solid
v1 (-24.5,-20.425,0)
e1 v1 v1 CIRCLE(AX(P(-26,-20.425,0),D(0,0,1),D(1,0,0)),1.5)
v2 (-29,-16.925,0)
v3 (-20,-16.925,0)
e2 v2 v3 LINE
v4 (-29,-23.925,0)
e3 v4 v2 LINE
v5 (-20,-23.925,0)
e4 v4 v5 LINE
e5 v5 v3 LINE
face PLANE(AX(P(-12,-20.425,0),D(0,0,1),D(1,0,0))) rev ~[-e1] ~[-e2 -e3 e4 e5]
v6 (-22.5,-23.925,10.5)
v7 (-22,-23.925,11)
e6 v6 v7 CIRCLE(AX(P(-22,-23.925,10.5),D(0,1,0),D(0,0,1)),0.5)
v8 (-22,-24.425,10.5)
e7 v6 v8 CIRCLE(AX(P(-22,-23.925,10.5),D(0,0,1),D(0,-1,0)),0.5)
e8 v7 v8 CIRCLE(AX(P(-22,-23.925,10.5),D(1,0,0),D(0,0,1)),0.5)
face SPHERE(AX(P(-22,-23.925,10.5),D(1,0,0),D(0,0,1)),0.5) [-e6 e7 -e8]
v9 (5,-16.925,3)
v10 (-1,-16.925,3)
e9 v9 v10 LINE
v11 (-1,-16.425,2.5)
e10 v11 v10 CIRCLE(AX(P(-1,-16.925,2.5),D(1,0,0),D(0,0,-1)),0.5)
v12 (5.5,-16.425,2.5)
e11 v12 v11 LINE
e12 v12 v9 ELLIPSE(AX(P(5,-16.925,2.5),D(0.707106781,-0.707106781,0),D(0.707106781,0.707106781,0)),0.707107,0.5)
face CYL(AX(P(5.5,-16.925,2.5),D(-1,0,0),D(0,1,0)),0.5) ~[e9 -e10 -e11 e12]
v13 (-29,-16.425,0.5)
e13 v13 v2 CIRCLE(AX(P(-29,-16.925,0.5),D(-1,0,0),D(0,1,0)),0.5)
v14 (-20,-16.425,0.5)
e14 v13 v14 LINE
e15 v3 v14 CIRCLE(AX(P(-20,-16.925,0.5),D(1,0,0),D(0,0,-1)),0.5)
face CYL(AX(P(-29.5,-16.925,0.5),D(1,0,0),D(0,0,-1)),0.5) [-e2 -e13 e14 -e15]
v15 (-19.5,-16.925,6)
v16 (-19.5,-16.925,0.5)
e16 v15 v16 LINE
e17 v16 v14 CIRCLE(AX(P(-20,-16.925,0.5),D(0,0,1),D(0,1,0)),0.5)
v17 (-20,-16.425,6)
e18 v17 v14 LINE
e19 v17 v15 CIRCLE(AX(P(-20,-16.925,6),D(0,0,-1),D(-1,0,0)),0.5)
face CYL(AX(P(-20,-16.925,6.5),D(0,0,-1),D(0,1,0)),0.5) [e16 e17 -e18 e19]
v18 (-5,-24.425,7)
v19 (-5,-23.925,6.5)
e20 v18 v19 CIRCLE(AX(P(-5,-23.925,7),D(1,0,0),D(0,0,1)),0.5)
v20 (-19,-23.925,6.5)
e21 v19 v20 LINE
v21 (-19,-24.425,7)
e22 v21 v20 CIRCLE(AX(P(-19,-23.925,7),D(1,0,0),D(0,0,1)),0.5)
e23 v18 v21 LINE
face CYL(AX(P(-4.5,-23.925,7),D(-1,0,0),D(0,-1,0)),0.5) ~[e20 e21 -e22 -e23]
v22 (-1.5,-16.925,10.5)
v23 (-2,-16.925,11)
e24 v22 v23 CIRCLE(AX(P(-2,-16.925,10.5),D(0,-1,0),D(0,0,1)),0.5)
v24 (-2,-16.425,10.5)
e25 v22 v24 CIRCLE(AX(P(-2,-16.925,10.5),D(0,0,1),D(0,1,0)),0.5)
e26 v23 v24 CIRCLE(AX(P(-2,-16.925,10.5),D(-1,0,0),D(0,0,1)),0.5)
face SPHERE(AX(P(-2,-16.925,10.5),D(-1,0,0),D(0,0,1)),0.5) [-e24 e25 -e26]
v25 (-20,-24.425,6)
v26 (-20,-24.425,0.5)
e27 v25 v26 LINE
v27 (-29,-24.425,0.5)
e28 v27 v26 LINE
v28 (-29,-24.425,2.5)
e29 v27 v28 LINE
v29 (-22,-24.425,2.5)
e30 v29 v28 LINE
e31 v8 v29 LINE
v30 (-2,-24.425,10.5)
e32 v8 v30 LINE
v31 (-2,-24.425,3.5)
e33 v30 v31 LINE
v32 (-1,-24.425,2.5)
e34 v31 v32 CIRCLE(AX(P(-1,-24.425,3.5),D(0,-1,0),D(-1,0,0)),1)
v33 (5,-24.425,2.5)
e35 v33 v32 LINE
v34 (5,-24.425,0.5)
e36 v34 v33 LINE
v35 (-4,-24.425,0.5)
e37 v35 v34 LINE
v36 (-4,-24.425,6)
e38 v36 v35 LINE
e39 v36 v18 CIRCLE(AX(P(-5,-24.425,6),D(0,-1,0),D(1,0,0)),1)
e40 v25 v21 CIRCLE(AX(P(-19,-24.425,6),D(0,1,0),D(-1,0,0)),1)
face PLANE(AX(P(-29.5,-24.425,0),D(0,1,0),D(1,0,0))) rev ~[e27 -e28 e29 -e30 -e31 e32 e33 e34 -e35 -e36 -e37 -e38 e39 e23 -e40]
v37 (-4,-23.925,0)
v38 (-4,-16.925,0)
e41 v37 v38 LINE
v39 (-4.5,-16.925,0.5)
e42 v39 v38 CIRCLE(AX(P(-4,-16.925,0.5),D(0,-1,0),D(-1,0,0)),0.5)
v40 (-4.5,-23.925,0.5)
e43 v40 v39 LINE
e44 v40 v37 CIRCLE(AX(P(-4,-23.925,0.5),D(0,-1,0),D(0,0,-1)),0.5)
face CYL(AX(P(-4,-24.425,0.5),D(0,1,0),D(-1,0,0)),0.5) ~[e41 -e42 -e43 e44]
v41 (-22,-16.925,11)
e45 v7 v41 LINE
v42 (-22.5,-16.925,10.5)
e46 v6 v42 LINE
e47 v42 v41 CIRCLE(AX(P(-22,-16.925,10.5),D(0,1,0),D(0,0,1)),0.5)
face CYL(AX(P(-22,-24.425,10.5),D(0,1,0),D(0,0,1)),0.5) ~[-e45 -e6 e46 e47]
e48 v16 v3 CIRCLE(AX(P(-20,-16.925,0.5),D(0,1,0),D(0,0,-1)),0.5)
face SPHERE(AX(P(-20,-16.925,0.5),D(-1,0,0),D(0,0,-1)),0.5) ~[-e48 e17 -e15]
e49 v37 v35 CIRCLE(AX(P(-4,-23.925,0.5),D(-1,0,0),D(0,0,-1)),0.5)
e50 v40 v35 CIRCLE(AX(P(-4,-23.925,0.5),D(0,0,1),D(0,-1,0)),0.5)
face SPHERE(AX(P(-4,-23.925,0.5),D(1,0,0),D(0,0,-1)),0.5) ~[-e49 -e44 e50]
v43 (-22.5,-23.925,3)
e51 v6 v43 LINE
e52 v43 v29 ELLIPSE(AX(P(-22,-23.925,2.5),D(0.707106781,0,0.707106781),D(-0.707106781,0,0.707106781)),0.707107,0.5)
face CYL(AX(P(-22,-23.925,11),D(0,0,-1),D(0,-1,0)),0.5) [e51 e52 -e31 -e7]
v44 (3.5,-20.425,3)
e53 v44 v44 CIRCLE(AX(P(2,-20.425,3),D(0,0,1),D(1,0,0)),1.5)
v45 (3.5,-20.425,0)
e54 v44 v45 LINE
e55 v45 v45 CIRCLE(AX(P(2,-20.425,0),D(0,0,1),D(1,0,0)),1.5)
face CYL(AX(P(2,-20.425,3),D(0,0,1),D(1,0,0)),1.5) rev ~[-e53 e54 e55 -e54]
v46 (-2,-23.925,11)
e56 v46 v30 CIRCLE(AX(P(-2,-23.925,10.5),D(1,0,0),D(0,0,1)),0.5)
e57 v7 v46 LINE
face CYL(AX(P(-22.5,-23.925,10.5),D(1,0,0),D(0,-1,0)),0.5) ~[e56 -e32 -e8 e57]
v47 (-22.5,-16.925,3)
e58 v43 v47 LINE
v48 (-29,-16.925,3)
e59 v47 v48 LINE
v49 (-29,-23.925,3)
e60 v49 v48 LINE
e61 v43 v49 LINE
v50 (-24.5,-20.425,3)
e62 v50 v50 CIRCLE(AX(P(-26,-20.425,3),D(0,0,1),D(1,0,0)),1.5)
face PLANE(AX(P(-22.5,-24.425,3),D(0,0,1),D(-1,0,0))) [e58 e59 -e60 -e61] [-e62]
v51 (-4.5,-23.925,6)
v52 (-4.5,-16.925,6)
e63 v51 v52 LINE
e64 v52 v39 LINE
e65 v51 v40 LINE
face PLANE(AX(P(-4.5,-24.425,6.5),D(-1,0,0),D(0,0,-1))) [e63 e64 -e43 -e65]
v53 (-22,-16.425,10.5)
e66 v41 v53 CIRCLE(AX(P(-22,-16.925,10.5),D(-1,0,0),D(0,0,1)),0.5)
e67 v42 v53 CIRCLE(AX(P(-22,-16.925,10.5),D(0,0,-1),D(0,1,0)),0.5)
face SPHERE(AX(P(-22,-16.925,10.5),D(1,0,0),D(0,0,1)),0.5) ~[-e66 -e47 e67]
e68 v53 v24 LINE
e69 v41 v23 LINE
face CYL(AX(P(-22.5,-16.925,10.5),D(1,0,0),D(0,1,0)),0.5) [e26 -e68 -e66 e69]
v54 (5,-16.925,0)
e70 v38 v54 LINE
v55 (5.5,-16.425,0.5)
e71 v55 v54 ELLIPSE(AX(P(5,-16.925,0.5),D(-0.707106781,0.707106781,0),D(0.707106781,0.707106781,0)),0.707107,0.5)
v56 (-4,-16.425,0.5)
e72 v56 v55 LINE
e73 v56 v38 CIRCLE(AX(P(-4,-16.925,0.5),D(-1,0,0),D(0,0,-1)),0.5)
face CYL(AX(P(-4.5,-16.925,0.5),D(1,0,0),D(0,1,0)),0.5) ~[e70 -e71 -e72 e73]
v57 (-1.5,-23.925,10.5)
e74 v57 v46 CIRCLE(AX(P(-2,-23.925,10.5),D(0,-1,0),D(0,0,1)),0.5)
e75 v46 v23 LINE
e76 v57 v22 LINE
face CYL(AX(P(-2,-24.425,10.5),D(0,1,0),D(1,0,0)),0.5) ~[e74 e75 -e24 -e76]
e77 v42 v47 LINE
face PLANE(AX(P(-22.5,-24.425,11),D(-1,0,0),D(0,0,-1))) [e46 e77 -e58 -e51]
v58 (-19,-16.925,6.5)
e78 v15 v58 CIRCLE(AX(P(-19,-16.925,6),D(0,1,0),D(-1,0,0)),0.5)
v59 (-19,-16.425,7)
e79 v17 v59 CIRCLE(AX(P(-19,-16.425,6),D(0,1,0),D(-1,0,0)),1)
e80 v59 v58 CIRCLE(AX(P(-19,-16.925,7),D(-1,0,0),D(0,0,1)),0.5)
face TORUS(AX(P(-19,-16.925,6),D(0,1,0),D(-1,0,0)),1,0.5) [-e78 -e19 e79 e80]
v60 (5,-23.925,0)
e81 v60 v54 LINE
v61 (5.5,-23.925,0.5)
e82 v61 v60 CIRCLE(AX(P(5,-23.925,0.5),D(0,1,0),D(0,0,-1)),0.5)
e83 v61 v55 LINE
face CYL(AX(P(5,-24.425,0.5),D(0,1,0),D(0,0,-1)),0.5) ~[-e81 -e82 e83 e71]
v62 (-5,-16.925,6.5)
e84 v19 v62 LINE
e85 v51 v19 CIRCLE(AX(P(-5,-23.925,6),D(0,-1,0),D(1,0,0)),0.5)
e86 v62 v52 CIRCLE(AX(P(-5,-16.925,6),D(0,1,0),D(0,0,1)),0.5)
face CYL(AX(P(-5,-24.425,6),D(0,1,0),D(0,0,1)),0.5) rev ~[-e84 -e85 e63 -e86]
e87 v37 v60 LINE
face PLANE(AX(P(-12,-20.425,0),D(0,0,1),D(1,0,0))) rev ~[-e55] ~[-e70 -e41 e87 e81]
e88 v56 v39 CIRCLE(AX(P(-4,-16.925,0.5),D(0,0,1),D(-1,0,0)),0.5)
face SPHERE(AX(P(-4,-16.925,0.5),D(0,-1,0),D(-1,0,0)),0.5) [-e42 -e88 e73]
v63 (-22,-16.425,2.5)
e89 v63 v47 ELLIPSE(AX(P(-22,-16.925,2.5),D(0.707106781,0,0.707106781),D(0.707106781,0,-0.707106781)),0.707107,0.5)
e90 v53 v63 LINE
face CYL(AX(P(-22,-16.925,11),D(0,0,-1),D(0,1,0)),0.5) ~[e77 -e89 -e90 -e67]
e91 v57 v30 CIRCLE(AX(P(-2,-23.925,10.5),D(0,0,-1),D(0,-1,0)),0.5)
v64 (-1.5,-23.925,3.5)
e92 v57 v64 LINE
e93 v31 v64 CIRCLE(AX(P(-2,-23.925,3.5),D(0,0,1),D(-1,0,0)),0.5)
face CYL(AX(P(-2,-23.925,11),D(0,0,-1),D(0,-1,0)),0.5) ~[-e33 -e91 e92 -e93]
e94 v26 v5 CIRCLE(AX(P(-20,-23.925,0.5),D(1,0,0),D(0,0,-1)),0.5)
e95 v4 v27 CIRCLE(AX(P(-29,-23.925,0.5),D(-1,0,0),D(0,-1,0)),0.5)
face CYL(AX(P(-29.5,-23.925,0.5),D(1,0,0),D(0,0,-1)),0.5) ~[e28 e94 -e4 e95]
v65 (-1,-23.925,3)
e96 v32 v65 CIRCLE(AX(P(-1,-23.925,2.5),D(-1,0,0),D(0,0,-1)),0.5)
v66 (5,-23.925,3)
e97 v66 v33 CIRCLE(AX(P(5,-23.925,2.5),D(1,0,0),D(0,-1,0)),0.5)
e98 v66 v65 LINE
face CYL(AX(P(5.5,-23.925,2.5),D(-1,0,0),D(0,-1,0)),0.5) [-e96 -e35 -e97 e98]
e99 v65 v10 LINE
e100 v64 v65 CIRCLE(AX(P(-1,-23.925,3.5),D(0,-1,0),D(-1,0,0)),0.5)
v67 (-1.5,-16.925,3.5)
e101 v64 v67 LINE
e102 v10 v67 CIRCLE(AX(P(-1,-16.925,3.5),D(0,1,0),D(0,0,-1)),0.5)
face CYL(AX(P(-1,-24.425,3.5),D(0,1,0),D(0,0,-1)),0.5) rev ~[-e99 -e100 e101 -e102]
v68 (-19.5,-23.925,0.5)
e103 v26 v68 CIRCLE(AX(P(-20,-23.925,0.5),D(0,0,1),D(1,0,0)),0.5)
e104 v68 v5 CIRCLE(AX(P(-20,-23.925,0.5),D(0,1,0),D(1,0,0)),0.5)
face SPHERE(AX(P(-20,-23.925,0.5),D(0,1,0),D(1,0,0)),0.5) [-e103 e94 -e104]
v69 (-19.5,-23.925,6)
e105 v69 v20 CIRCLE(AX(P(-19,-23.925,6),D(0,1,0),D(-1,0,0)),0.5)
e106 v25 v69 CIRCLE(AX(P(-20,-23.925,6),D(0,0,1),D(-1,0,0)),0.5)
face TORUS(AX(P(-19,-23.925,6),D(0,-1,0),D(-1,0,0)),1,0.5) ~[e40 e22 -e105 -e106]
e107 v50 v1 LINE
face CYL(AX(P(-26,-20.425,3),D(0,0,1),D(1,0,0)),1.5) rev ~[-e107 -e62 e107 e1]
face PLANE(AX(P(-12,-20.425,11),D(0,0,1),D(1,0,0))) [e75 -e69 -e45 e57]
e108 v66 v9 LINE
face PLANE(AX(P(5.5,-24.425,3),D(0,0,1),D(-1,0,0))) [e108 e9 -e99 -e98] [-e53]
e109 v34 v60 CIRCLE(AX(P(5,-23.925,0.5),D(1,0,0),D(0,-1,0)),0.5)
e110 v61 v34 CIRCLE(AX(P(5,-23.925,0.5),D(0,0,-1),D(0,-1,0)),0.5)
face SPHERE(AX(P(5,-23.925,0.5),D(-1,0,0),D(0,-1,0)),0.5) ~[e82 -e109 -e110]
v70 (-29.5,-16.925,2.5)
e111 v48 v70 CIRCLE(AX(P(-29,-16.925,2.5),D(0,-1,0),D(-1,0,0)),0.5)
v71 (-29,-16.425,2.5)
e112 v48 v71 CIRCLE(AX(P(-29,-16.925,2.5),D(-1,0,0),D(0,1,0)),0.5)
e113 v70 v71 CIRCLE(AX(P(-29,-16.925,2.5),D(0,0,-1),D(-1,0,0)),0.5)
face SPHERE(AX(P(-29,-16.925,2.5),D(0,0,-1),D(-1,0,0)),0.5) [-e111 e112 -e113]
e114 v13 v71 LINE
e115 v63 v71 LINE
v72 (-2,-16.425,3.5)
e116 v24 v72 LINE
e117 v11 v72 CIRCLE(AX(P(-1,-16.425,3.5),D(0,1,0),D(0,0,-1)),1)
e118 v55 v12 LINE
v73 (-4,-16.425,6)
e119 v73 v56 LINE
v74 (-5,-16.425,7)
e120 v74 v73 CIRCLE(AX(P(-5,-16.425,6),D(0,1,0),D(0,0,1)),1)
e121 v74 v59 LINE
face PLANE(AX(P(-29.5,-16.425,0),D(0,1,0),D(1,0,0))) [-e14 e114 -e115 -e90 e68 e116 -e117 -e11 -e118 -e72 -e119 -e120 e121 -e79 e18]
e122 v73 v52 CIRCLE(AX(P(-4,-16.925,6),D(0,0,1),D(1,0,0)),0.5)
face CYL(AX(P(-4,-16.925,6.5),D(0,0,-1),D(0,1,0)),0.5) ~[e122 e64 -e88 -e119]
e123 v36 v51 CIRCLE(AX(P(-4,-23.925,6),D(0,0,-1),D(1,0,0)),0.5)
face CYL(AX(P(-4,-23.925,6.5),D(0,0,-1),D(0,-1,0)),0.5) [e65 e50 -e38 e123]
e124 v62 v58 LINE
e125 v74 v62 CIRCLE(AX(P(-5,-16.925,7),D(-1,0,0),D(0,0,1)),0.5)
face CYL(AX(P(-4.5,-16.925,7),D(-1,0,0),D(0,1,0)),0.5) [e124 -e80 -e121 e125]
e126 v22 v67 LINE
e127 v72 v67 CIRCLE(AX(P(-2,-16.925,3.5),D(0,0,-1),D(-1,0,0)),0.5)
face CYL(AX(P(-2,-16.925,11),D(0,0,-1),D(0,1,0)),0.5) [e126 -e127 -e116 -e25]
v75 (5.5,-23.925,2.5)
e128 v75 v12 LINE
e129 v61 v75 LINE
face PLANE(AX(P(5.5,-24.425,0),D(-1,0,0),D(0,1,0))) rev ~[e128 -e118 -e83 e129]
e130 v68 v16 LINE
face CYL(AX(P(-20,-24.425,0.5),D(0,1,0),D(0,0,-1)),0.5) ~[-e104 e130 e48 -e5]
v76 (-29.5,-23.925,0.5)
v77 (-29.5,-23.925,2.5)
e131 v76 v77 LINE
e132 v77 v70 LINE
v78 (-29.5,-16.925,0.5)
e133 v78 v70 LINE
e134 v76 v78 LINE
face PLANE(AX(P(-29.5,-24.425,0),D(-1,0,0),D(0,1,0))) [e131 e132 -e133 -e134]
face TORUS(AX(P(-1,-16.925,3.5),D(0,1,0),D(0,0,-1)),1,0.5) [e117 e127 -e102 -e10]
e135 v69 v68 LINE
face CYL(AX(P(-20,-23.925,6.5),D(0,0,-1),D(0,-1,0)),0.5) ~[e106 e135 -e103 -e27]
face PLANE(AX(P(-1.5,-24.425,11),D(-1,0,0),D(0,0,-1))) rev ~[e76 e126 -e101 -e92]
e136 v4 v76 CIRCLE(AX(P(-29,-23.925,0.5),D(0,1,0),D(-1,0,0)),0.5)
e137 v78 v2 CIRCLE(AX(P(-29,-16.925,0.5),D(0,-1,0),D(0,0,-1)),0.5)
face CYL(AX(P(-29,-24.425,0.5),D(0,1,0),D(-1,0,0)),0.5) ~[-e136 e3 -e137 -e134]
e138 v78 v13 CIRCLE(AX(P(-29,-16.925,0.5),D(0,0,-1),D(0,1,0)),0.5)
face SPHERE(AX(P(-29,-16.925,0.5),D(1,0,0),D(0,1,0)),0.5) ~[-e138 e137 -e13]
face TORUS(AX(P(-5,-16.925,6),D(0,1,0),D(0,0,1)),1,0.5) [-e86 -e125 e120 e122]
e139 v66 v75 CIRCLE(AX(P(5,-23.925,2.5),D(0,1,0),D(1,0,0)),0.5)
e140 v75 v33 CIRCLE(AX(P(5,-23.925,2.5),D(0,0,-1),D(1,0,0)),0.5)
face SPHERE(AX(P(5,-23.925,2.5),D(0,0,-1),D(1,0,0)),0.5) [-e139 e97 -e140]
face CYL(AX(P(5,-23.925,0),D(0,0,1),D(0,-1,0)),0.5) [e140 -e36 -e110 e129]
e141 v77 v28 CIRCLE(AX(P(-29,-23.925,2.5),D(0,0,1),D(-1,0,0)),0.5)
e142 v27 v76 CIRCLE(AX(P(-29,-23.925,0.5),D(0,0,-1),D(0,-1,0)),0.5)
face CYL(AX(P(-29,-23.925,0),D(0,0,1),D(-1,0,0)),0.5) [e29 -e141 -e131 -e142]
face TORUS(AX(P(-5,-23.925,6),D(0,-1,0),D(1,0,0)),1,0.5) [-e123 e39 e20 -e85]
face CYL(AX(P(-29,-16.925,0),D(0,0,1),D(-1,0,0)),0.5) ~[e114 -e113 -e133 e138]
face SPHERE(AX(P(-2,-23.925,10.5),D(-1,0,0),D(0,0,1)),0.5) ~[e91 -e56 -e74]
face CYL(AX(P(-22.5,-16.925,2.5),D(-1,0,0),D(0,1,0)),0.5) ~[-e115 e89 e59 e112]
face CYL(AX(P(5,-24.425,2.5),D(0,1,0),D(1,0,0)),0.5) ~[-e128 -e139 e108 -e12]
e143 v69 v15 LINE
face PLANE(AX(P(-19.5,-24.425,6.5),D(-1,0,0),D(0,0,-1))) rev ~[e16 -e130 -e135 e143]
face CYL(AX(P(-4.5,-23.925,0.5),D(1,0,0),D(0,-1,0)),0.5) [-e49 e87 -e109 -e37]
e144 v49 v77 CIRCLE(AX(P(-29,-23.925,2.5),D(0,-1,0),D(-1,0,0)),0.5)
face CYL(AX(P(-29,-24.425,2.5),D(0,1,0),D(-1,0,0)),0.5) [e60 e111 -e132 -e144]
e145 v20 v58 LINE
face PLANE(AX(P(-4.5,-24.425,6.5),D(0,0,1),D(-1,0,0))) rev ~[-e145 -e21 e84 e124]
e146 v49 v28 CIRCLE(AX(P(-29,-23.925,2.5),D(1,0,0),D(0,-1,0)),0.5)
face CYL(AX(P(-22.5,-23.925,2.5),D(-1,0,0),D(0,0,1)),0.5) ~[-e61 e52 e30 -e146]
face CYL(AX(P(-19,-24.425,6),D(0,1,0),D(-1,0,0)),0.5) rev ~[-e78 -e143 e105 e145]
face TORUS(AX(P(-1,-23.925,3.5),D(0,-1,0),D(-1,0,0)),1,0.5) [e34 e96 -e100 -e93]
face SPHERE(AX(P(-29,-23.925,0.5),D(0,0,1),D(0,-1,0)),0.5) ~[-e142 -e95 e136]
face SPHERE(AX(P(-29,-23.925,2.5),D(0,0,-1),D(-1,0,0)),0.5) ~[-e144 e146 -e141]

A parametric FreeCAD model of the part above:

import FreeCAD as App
import Part
import Sketcher


def edges_at(feature, points):
    """Names of the edges that pass closest to the given points."""
    edges = feature.Shape.Edges
    near = lambda p: min(range(len(edges)), key=lambda i: edges[i].distToShape(Part.Vertex(*p))[0])
    return sorted({f"Edge{near(p) + 1}" for p in points})


def add_polygon(sketch, points):
    """Adds a closed chain of lines whose ends are joined by coincident constraints."""
    first, n = sketch.GeometryCount, len(points)
    for a, b in zip(points, points[1:] + points[:1]):
        sketch.addGeometry(Part.LineSegment(App.Vector(*a, 0), App.Vector(*b, 0)), False)
    for i in range(n):
        sketch.addConstraint(Sketcher.Constraint("Coincident", first + i, 2, first + (i + 1) % n, 1))

doc = App.newDocument("Part")
body = doc.addObject("PartDesign::Body", "Body")

sketch1 = body.newObject("Sketcher::SketchObject", "Sketch")
sketch1.AttachmentSupport = (doc.getObject("XY_Plane"), [""])
sketch1.MapMode = "FlatFace"
add_polygon(sketch1, [(-29.5, -16.425), (-29.5, -24.425), (5.5, -24.425), (5.5, -16.425)])
sketch1.addConstraint([
    Sketcher.Constraint("Vertical", 0),
    Sketcher.Constraint("Horizontal", 1),
    Sketcher.Constraint("Vertical", 2),
    Sketcher.Constraint("Horizontal", 3),
    Sketcher.Constraint("DistanceX", 1, 1, 1, 2, 35.0),
    Sketcher.Constraint("DistanceY", 0, 2, 0, 1, 8.0),
    Sketcher.Constraint("DistanceX", 0, 2, -1, 1, 29.5),
    Sketcher.Constraint("DistanceY", 0, 2, -1, 1, 24.425),
])
pad1 = body.newObject("PartDesign::Pad", "Pad")
pad1.Profile = sketch1
pad1.Length = 11

sketch2 = body.newObject("Sketcher::SketchObject", "Sketch001")
sketch2.AttachmentSupport = (doc.getObject("XZ_Plane"), [""])
sketch2.MapMode = "FlatFace"
sketch2.AttachmentOffset = App.Placement(App.Vector(0, 0, 24.425), App.Rotation())
add_polygon(sketch2, [(-4.5, 0), (-4.5, 6.5), (-19.5, 6.5), (-19.5, 0)])
sketch2.addConstraint([
    Sketcher.Constraint("Vertical", 0),
    Sketcher.Constraint("Horizontal", 1),
    Sketcher.Constraint("Vertical", 2),
    Sketcher.Constraint("Horizontal", 3),
    Sketcher.Constraint("PointOnObject", 2, 2, -1),
    Sketcher.Constraint("DistanceX", 1, 2, 1, 1, 15.0),
    Sketcher.Constraint("DistanceY", 0, 1, 0, 2, 6.5),
    Sketcher.Constraint("DistanceX", 0, 2, -1, 1, 4.5),
])
pocket1 = body.newObject("PartDesign::Pocket", "Pocket")
pocket1.Profile = sketch2
pocket1.Type = "UpToFirst"

sketch3 = body.newObject("Sketcher::SketchObject", "Sketch002")
sketch3.AttachmentSupport = (doc.getObject("XZ_Plane"), [""])
sketch3.MapMode = "FlatFace"
sketch3.AttachmentOffset = App.Placement(App.Vector(0, 0, 24.425), App.Rotation())
add_polygon(sketch3, [(5.5, 3), (5.5, 11), (-1.5, 11), (-1.5, 3)])
sketch3.addConstraint([
    Sketcher.Constraint("Vertical", 0),
    Sketcher.Constraint("Horizontal", 1),
    Sketcher.Constraint("Vertical", 2),
    Sketcher.Constraint("Horizontal", 3),
    Sketcher.Constraint("DistanceX", 1, 2, 1, 1, 7.0),
    Sketcher.Constraint("DistanceY", 0, 1, 0, 2, 8.0),
    Sketcher.Constraint("DistanceY", -1, 1, 0, 2, 11.0),
    Sketcher.Constraint("DistanceX", -1, 1, 0, 2, 5.5),
])
pocket2 = body.newObject("PartDesign::Pocket", "Pocket001")
pocket2.Profile = sketch3
pocket2.Type = "UpToFirst"

sketch4 = body.newObject("Sketcher::SketchObject", "Sketch003")
sketch4.AttachmentSupport = (doc.getObject("XZ_Plane"), [""])
sketch4.MapMode = "FlatFace"
sketch4.AttachmentOffset = App.Placement(App.Vector(0, 0, 24.425), App.Rotation())
add_polygon(sketch4, [(-22.5, 3), (-22.5, 11), (-29.5, 11), (-29.5, 3)])
sketch4.addConstraint([
    Sketcher.Constraint("Vertical", 0),
    Sketcher.Constraint("Horizontal", 1),
    Sketcher.Constraint("Vertical", 2),
    Sketcher.Constraint("Horizontal", 3),
    Sketcher.Constraint("DistanceX", 1, 2, 1, 1, 7.0),
    Sketcher.Constraint("DistanceY", 0, 1, 0, 2, 8.0),
    Sketcher.Constraint("DistanceY", -1, 1, 0, 2, 11.0),
    Sketcher.Constraint("DistanceX", 0, 2, -1, 1, 22.5),
])
pocket3 = body.newObject("PartDesign::Pocket", "Pocket002")
pocket3.Profile = sketch4
pocket3.Type = "UpToFirst"

sketch5 = body.newObject("Sketcher::SketchObject", "Sketch004")
sketch5.AttachmentSupport = (doc.getObject("XY_Plane"), [""])
sketch5.MapMode = "FlatFace"
sketch5.AttachmentOffset = App.Placement(App.Vector(0, 0, 3), App.Rotation())
sketch5.addGeometry(Part.Circle(App.Vector(2, -20.425, 0), App.Vector(0, 0, 1), 1.5), False)
sketch5.addConstraint([
    Sketcher.Constraint("Diameter", 0, 3.0),
    Sketcher.Constraint("DistanceX", -1, 1, 0, 3, 2.0),
    Sketcher.Constraint("DistanceY", 0, 3, -1, 1, 20.425),
])
pocket4 = body.newObject("PartDesign::Pocket", "Pocket003")
pocket4.Profile = sketch5
pocket4.Type = "UpToFirst"

sketch6 = body.newObject("Sketcher::SketchObject", "Sketch005")
sketch6.AttachmentSupport = (doc.getObject("XY_Plane"), [""])
sketch6.MapMode = "FlatFace"
sketch6.AttachmentOffset = App.Placement(App.Vector(0, 0, 3), App.Rotation())
sketch6.addGeometry(Part.Circle(App.Vector(-26, -20.425, 0), App.Vector(0, 0, 1), 1.5), False)
sketch6.addConstraint([
    Sketcher.Constraint("Diameter", 0, 3.0),
    Sketcher.Constraint("DistanceX", 0, 3, -1, 1, 26.0),
    Sketcher.Constraint("DistanceY", 0, 3, -1, 1, 20.425),
])
pocket5 = body.newObject("PartDesign::Pocket", "Pocket004")
pocket5.Profile = sketch6
pocket5.Type = "UpToFirst"
doc.recompute()

fillet = body.newObject("PartDesign::Fillet", "Fillet")
fillet.Base = (pocket5, edges_at(pocket5, [
    (-24.5, -16.425, 0),
    (0.5, -24.425, 0),
    (-19.5, -20.425, 0),
    (-19.5, -20.425, 6.5),
    (-4.5, -20.425, 6.5),
    (-4.5, -20.425, 0),
    (-19.5, -24.425, 3.25),
    (-4.5, -24.425, 3.25),
    (-12, -24.425, 6.5),
    (-19.5, -16.425, 3.25),
    (-12, -16.425, 6.5),
    (-4.5, -16.425, 3.25),
    (-12, -24.425, 11),
    (-12, -16.425, 11),
    (-29.5, -16.425, 1.5),
    (5.5, -24.425, 1.5),
    (-29.5, -24.425, 1.5),
    (5.5, -20.425, 3),
    (-1.5, -20.425, 3),
    (-1.5, -20.425, 11),
    (-1.5, -24.425, 7),
    (2, -24.425, 3),
    (2, -16.425, 3),
    (-1.5, -16.425, 7),
    (-29.5, -20.425, 3),
    (-22.5, -20.425, 11),
    (-26, -24.425, 3),
    (-22.5, -24.425, 7),
    (-22.5, -16.425, 7),
    (-26, -16.425, 3),
    (0.5, -16.425, 0),
    (5.5, -20.425, 0),
    (-24.5, -24.425, 0),
    (-29.5, -20.425, 0),
]))
fillet.Radius = 0.5

doc.recompute()
